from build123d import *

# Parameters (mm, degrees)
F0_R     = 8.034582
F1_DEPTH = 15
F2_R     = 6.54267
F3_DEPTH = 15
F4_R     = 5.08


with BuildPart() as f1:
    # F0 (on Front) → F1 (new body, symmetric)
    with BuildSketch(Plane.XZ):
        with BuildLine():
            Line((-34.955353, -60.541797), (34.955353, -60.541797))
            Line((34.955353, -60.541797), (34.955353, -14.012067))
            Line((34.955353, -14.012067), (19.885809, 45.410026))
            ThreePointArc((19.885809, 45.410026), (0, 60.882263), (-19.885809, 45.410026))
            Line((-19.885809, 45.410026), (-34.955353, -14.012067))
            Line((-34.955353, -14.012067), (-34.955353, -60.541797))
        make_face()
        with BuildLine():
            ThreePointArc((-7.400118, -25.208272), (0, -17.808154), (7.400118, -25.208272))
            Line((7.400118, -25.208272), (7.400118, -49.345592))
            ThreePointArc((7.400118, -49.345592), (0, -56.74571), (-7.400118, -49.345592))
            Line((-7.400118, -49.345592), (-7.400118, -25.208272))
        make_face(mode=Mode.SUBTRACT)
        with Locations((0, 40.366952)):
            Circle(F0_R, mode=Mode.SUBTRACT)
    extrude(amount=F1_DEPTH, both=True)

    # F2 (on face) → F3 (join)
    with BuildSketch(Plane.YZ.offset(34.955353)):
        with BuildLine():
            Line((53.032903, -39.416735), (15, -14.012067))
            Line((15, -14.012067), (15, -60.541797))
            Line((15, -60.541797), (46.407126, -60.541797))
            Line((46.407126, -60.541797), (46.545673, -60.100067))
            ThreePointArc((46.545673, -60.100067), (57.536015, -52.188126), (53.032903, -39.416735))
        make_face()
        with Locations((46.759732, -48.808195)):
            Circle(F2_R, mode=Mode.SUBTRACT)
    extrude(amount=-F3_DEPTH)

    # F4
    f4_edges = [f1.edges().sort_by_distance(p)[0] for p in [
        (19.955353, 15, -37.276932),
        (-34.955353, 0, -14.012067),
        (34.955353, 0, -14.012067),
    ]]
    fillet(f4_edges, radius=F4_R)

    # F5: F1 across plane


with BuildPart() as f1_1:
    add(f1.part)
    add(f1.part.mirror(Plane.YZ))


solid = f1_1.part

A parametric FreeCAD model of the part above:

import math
import FreeCAD as App
import Part
import Sketcher
from FreeCAD import Vector


def edges_at(feature, points):
    """Names of the edges that pass closest to the given points."""
    edges = feature.Shape.Edges
    near = lambda p: min(range(len(edges)), key=lambda i: edges[i].distToShape(Part.Vertex(*p))[0])
    return sorted({f"Edge{near(p) + 1}" for p in points})

doc = App.newDocument("Part")
body = doc.addObject("PartDesign::Body", "Body")

sketch1 = body.newObject("Sketcher::SketchObject", "Sketch")
sketch1.AttachmentSupport = (doc.getObject("XZ_Plane"), [""])
sketch1.MapMode = "FlatFace"
sketch1.addGeometry([
    Part.LineSegment(Vector(-35, -61, 0), Vector(35, -61, 0)),
    Part.LineSegment(Vector(35, -61, 0), Vector(35, -14, 0)),
    Part.LineSegment(Vector(35, -14, 0), Vector(20, 45, 0)),
    Part.ArcOfCircle(Part.Circle(Vector(0, 40, 0), Vector(0, 0, 1), 21), math.radians(14), math.radians(166)),
    Part.LineSegment(Vector(-20, 45, 0), Vector(-35, -14, 0)),
    Part.LineSegment(Vector(-35, -14, 0), Vector(-35, -61, 0)),
    Part.LineSegment(Vector(-7, -49, 0), Vector(-7, -25, 0)),
    Part.ArcOfCircle(Part.Circle(Vector(0, -25, 0), Vector(0, 0, 1), 7), math.radians(0), math.radians(180)),
    Part.LineSegment(Vector(7, -25, 0), Vector(7, -49, 0)),
    Part.ArcOfCircle(Part.Circle(Vector(0, -49, 0), Vector(0, 0, 1), 7), math.radians(180), math.radians(360)),
    Part.Circle(Vector(0, 40, 0), Vector(0, 0, 1), 8),
], False)
sketch1.addConstraint([
    Sketcher.Constraint("Coincident", 0, 2, 1, 1),
    Sketcher.Constraint("Coincident", 1, 2, 2, 1),
    Sketcher.Constraint("Tangent", 2, 2, 3, 1),
    Sketcher.Constraint("Tangent", 3, 2, 4, 1),
    Sketcher.Constraint("Coincident", 4, 2, 5, 1),
    Sketcher.Constraint("Coincident", 5, 2, 0, 1),
    Sketcher.Constraint("Tangent", 6, 2, 7, 2),
    Sketcher.Constraint("Tangent", 7, 1, 8, 1),
    Sketcher.Constraint("Tangent", 8, 2, 9, 2),
    Sketcher.Constraint("Tangent", 9, 1, 6, 1),
    Sketcher.Constraint("Horizontal", 0),
    Sketcher.Constraint("Vertical", 1),
    Sketcher.Constraint("Vertical", 5),
    Sketcher.Constraint("Vertical", 6),
    Sketcher.Constraint("Vertical", 8),
    Sketcher.Constraint("Coincident", 10, 3, 3, 3),
    Sketcher.Constraint("Symmetric", 2, 2, 3, 2, -2),
    Sketcher.Constraint("PointOnObject", 7, 3, -2),
    Sketcher.Constraint("Horizontal", 1, 2, 4, 2),
    Sketcher.Constraint("Radius", 3, 20.515311),
    Sketcher.Constraint("Diameter", 10, 16.069164),
    Sketcher.Constraint("Radius", 7, 7.400118),
    Sketcher.Constraint("DistanceY", 1, 1, 1, 2, 46.52973),
    Sketcher.Constraint("DistanceY", 6, 1, 6, 2, 24.13732),
    Sketcher.Constraint("DistanceY", 7, 3, 2, 2, 70.618298),
    Sketcher.Constraint("Distance", 2, 61.303151),
    Sketcher.Constraint("DistanceX", 0, 1, 0, 2, 69.910706),
    Sketcher.Constraint("DistanceY", -1, 1, 3, 3, 40.366952),
])
pad1 = body.newObject("PartDesign::Pad", "Pad")
pad1.Profile = sketch1
pad1.Length = 30
pad1.Midplane = True

sketch2 = body.newObject("Sketcher::SketchObject", "Sketch001")
sketch2.AttachmentSupport = (doc.getObject("YZ_Plane"), [""])
sketch2.MapMode = "FlatFace"
sketch2.AttachmentOffset = App.Placement(Vector(0, 0, 34.955353), App.Rotation())
sketch2.addGeometry([
    Part.LineSegment(Vector(53.03, -39.42, 0), Vector(15, -14.01, 0)),
    Part.LineSegment(Vector(15, -14.01, 0), Vector(15, -60.54, 0)),
    Part.LineSegment(Vector(15, -60.54, 0), Vector(46.41, -60.54, 0)),
    Part.LineSegment(Vector(46.41, -60.54, 0), Vector(46.55, -60.1, 0)),
    Part.ArcOfCircle(Part.Circle(Vector(46.76, -48.81, 0), Vector(0, 0, 1), 11.29), math.radians(-91), math.radians(56)),
    Part.Circle(Vector(46.76, -48.81, 0), Vector(0, 0, 1), 6.54),
], False)
sketch2.addConstraint([
    Sketcher.Constraint("Coincident", 0, 2, 1, 1),
    Sketcher.Constraint("Coincident", 1, 2, 2, 1),
    Sketcher.Constraint("Coincident", 2, 2, 3, 1),
    Sketcher.Constraint("Coincident", 3, 2, 4, 1),
    Sketcher.Constraint("Tangent", 4, 2, 0, 1),
    Sketcher.Constraint("Vertical", 1),
    Sketcher.Constraint("Horizontal", 2),
    Sketcher.Constraint("Coincident", 5, 3, 4, 3),
    Sketcher.Constraint("DistanceX", -1, 1, 0, 2, 15.0),
    Sketcher.Constraint("Radius", 4, 11.293901),
    Sketcher.Constraint("Diameter", 5, 13.08534),
    Sketcher.Constraint("DistanceY", 3, 2, 0, 2, 46.088),
    Sketcher.Constraint("DistanceY", 1, 2, 1, 1, 46.52973),
    Sketcher.Constraint("DistanceY", 1, 2, 4, 3, 11.733602),
    Sketcher.Constraint("Distance", 0, 45.737281),
    Sketcher.Constraint("DistanceX", 2, 1, 2, 2, 31.407126),
    Sketcher.Constraint("DistanceY", 4, 3, -1, 1, 48.808195),
])
pad2 = body.newObject("PartDesign::Pad", "Pad001")
pad2.Profile = sketch2
pad2.Length = 15
pad2.Reversed = True
doc.recompute()

fillet = body.newObject("PartDesign::Fillet", "Fillet")
fillet.Base = (pad2, edges_at(pad2, [(19.955, 15, -37.277), (-34.955, 0, -14.012), (34.955, 0, -14.012)]))
fillet.Radius = 5.08
body2 = doc.addObject("PartDesign::Body", "Body001")
doc.recompute()

body2.BaseFeature = body
doc.recompute()

mirroring = doc.addObject("Part::Mirroring", "Mirroring")
mirroring.Source = body
mirroring.Base = Vector(0, 0, 0)
mirroring.Normal = Vector(1, 0, 0)
body3 = doc.addObject("PartDesign::Body", "Body002")
body3.BaseFeature = mirroring
boolean = body2.newObject("PartDesign::Boolean", "Boolean")
boolean.Type = "Fuse"
boolean.addObjects([body3])
doc.recompute()
mirroring.Visibility = False

doc.recompute()
